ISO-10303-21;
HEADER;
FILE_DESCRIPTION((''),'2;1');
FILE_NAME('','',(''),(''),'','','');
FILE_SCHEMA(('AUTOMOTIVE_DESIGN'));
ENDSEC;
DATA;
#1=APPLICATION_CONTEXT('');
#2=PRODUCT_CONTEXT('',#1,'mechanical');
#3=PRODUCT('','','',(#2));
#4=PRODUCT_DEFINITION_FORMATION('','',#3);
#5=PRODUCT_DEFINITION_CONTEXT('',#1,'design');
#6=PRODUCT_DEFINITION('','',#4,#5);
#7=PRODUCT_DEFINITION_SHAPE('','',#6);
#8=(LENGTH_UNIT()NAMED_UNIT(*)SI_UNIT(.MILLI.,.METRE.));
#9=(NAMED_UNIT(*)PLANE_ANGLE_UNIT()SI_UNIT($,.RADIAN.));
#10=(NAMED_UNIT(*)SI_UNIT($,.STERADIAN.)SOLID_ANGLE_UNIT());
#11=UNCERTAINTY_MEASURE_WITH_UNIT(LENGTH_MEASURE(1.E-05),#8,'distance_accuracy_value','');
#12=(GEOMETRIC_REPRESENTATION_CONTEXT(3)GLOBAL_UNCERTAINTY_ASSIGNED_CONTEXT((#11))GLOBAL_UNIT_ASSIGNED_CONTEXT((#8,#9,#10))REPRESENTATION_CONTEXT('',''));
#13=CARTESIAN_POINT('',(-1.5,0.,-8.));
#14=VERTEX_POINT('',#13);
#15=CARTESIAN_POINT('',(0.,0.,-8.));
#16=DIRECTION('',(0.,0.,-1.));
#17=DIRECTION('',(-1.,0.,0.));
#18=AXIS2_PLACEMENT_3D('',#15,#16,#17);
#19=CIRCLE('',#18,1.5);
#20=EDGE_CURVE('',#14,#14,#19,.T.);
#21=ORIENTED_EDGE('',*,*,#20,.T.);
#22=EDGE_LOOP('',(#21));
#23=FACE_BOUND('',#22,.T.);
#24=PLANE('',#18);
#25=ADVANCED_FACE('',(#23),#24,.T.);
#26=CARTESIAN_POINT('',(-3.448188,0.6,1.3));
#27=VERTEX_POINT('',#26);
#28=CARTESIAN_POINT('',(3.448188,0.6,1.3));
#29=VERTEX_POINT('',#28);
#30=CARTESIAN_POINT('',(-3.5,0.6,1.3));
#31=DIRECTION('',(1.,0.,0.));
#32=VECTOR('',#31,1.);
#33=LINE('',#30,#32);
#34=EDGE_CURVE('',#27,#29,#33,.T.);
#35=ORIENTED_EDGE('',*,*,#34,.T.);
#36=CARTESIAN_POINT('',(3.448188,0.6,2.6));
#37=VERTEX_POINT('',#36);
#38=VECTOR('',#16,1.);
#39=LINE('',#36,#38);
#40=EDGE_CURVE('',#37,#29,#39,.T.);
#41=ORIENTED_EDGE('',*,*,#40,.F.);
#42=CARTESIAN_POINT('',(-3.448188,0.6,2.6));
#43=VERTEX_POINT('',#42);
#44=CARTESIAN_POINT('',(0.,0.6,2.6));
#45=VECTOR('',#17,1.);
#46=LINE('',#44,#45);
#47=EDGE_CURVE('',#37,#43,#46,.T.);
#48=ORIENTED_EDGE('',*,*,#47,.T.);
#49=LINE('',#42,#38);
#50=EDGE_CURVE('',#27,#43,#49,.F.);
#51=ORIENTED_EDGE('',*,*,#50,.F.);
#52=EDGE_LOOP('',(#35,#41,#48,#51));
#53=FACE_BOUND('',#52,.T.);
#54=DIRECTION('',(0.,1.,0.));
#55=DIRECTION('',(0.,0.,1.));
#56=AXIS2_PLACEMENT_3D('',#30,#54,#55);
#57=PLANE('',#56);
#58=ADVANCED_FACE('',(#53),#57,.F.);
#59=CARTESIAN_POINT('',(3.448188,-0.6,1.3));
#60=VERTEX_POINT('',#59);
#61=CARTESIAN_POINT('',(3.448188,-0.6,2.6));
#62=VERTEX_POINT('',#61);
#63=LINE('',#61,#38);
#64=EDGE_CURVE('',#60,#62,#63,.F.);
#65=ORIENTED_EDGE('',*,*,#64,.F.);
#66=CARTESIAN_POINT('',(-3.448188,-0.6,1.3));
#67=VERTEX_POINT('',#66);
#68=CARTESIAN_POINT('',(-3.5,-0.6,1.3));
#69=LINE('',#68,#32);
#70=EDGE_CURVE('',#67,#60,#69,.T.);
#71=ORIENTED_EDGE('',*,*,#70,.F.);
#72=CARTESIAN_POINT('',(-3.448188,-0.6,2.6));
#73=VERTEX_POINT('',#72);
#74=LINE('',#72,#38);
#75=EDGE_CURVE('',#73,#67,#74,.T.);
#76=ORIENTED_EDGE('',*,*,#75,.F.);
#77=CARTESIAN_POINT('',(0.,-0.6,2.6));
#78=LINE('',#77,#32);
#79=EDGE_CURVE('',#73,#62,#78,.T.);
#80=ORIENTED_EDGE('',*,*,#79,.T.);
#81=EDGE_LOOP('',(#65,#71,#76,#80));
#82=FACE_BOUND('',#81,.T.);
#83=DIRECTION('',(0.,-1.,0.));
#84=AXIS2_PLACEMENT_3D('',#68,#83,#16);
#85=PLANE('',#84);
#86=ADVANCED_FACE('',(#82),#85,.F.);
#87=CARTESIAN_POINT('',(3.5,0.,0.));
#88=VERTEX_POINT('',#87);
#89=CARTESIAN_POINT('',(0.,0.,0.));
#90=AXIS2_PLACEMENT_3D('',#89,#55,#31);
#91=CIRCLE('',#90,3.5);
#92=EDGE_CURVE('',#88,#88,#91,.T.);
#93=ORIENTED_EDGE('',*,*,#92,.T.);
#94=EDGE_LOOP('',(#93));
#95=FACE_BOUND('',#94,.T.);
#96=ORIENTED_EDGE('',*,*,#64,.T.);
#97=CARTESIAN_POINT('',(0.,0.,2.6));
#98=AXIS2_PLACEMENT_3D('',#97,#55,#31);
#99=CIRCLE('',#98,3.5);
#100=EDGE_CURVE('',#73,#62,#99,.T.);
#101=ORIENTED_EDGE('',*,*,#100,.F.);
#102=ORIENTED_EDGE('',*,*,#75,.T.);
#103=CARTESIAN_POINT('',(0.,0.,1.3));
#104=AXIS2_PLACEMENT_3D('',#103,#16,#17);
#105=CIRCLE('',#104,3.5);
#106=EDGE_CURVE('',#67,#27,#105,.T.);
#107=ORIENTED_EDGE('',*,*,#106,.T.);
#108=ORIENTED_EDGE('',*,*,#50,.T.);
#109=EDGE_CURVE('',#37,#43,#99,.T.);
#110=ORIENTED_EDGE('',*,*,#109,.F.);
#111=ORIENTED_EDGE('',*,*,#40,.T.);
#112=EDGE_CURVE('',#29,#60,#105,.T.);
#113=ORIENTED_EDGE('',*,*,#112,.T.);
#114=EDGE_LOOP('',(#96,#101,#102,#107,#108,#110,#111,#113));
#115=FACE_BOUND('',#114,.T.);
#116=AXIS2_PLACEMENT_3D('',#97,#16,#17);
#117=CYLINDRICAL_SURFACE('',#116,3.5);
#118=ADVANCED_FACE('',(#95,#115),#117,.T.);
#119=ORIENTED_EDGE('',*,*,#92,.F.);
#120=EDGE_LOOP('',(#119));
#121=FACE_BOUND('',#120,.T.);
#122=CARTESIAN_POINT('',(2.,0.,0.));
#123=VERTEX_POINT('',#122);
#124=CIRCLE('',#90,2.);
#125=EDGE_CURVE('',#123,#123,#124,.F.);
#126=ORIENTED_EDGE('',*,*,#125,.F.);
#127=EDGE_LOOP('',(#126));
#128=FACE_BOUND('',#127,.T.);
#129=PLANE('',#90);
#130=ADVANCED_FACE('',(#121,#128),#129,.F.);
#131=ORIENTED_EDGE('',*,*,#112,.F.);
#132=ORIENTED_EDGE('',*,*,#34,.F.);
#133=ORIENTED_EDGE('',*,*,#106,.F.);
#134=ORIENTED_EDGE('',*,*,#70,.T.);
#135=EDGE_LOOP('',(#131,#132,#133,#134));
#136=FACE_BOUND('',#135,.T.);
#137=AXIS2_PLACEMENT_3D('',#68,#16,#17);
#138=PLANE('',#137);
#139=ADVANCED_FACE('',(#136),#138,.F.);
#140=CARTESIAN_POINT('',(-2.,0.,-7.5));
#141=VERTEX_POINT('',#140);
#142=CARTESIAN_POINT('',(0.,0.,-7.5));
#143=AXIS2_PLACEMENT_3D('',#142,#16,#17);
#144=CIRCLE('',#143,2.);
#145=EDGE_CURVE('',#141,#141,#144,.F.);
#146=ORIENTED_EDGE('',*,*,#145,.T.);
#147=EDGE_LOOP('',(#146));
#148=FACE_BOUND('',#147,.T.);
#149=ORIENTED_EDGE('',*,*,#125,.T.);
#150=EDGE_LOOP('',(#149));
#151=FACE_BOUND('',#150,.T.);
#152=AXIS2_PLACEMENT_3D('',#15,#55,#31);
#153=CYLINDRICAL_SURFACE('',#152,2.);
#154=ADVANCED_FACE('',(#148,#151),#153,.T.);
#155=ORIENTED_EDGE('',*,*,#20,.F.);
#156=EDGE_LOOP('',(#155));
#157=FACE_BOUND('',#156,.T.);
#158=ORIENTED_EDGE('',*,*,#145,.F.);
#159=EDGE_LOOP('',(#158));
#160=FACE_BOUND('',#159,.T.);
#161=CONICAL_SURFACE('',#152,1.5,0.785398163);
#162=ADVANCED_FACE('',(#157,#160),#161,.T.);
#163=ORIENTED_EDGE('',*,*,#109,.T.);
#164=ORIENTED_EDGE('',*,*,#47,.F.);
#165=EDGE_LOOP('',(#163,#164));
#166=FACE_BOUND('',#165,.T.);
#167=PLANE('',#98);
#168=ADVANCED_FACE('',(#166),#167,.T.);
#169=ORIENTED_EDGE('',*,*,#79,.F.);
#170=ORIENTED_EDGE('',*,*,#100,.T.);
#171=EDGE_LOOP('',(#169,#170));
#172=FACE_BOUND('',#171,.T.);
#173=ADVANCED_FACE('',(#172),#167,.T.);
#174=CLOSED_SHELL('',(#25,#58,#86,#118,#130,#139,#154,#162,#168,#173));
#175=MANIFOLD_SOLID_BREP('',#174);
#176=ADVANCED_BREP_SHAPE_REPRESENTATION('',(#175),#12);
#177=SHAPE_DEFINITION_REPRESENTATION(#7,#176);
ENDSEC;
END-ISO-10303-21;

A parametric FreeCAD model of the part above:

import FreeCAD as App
import Part
import Sketcher


def edges_at(feature, points):
    """Names of the edges that pass closest to the given points."""
    edges = feature.Shape.Edges
    near = lambda p: min(range(len(edges)), key=lambda i: edges[i].distToShape(Part.Vertex(*p))[0])
    return sorted({f"Edge{near(p) + 1}" for p in points})


def add_polygon(sketch, points):
    """Adds a closed chain of lines whose ends are joined by coincident constraints."""
    first, n = sketch.GeometryCount, len(points)
    for a, b in zip(points, points[1:] + points[:1]):
        sketch.addGeometry(Part.LineSegment(App.Vector(*a, 0), App.Vector(*b, 0)), False)
    for i in range(n):
        sketch.addConstraint(Sketcher.Constraint("Coincident", first + i, 2, first + (i + 1) % n, 1))

doc = App.newDocument("Part")
body = doc.addObject("PartDesign::Body", "Body")

sketch1 = body.newObject("Sketcher::SketchObject", "Sketch")
sketch1.AttachmentSupport = (doc.getObject("XY_Plane"), [""])
sketch1.MapMode = "FlatFace"
sketch1.addGeometry(Part.Circle(App.Vector(0, 0, 0), App.Vector(0, 0, 1), 3.5), False)
sketch1.addConstraint([
    Sketcher.Constraint("Coincident", 0, 3, -1, 1),
    Sketcher.Constraint("Diameter", 0, 7.0),
])
pad1 = body.newObject("PartDesign::Pad", "Pad")
pad1.Profile = sketch1
pad1.Length = 2.6

sketch2 = body.newObject("Sketcher::SketchObject", "Sketch001")
sketch2.AttachmentSupport = (doc.getObject("XY_Plane"), [""])
sketch2.MapMode = "FlatFace"
sketch2.addGeometry(Part.Circle(App.Vector(0, 0, 0), App.Vector(0, 0, 1), 2), False)
sketch2.addConstraint([
    Sketcher.Constraint("Coincident", 0, 3, -1, 1),
    Sketcher.Constraint("Diameter", 0, 4.0),
])
pad2 = body.newObject("PartDesign::Pad", "Pad001")
pad2.Profile = sketch2
pad2.Length = 8
pad2.Reversed = True
doc.recompute()

chamfer = body.newObject("PartDesign::Chamfer", "Chamfer")
chamfer.Base = (pad2, edges_at(pad2, [(-2, 0, -8)]))
chamfer.Size = 0.5

sketch3 = body.newObject("Sketcher::SketchObject", "Sketch002")
sketch3.AttachmentSupport = (doc.getObject("YZ_Plane"), [""])
sketch3.MapMode = "FlatFace"
add_polygon(sketch3, [(0.6, 2.6), (-0.6, 2.6), (-0.6, 1.3), (0.6, 1.3)])
sketch3.addConstraint([
    Sketcher.Constraint("Horizontal", 0),
    Sketcher.Constraint("Vertical", 1),
    Sketcher.Constraint("Horizontal", 2),
    Sketcher.Constraint("Vertical", 3),
    Sketcher.Constraint("DistanceX", 0, 2, 0, 1, 1.2),
    Sketcher.Constraint("DistanceY", 1, 2, 1, 1, 1.3),
    Sketcher.Constraint("DistanceX", 0, 2, -1, 1, 0.6),
    Sketcher.Constraint("DistanceY", -1, 1, 0, 2, 2.6),
])
pocket1 = body.newObject("PartDesign::Pocket", "Pocket")
pocket1.Profile = sketch3
pocket1.Type = "ThroughAll"
pocket1.Midplane = True

doc.recompute()
